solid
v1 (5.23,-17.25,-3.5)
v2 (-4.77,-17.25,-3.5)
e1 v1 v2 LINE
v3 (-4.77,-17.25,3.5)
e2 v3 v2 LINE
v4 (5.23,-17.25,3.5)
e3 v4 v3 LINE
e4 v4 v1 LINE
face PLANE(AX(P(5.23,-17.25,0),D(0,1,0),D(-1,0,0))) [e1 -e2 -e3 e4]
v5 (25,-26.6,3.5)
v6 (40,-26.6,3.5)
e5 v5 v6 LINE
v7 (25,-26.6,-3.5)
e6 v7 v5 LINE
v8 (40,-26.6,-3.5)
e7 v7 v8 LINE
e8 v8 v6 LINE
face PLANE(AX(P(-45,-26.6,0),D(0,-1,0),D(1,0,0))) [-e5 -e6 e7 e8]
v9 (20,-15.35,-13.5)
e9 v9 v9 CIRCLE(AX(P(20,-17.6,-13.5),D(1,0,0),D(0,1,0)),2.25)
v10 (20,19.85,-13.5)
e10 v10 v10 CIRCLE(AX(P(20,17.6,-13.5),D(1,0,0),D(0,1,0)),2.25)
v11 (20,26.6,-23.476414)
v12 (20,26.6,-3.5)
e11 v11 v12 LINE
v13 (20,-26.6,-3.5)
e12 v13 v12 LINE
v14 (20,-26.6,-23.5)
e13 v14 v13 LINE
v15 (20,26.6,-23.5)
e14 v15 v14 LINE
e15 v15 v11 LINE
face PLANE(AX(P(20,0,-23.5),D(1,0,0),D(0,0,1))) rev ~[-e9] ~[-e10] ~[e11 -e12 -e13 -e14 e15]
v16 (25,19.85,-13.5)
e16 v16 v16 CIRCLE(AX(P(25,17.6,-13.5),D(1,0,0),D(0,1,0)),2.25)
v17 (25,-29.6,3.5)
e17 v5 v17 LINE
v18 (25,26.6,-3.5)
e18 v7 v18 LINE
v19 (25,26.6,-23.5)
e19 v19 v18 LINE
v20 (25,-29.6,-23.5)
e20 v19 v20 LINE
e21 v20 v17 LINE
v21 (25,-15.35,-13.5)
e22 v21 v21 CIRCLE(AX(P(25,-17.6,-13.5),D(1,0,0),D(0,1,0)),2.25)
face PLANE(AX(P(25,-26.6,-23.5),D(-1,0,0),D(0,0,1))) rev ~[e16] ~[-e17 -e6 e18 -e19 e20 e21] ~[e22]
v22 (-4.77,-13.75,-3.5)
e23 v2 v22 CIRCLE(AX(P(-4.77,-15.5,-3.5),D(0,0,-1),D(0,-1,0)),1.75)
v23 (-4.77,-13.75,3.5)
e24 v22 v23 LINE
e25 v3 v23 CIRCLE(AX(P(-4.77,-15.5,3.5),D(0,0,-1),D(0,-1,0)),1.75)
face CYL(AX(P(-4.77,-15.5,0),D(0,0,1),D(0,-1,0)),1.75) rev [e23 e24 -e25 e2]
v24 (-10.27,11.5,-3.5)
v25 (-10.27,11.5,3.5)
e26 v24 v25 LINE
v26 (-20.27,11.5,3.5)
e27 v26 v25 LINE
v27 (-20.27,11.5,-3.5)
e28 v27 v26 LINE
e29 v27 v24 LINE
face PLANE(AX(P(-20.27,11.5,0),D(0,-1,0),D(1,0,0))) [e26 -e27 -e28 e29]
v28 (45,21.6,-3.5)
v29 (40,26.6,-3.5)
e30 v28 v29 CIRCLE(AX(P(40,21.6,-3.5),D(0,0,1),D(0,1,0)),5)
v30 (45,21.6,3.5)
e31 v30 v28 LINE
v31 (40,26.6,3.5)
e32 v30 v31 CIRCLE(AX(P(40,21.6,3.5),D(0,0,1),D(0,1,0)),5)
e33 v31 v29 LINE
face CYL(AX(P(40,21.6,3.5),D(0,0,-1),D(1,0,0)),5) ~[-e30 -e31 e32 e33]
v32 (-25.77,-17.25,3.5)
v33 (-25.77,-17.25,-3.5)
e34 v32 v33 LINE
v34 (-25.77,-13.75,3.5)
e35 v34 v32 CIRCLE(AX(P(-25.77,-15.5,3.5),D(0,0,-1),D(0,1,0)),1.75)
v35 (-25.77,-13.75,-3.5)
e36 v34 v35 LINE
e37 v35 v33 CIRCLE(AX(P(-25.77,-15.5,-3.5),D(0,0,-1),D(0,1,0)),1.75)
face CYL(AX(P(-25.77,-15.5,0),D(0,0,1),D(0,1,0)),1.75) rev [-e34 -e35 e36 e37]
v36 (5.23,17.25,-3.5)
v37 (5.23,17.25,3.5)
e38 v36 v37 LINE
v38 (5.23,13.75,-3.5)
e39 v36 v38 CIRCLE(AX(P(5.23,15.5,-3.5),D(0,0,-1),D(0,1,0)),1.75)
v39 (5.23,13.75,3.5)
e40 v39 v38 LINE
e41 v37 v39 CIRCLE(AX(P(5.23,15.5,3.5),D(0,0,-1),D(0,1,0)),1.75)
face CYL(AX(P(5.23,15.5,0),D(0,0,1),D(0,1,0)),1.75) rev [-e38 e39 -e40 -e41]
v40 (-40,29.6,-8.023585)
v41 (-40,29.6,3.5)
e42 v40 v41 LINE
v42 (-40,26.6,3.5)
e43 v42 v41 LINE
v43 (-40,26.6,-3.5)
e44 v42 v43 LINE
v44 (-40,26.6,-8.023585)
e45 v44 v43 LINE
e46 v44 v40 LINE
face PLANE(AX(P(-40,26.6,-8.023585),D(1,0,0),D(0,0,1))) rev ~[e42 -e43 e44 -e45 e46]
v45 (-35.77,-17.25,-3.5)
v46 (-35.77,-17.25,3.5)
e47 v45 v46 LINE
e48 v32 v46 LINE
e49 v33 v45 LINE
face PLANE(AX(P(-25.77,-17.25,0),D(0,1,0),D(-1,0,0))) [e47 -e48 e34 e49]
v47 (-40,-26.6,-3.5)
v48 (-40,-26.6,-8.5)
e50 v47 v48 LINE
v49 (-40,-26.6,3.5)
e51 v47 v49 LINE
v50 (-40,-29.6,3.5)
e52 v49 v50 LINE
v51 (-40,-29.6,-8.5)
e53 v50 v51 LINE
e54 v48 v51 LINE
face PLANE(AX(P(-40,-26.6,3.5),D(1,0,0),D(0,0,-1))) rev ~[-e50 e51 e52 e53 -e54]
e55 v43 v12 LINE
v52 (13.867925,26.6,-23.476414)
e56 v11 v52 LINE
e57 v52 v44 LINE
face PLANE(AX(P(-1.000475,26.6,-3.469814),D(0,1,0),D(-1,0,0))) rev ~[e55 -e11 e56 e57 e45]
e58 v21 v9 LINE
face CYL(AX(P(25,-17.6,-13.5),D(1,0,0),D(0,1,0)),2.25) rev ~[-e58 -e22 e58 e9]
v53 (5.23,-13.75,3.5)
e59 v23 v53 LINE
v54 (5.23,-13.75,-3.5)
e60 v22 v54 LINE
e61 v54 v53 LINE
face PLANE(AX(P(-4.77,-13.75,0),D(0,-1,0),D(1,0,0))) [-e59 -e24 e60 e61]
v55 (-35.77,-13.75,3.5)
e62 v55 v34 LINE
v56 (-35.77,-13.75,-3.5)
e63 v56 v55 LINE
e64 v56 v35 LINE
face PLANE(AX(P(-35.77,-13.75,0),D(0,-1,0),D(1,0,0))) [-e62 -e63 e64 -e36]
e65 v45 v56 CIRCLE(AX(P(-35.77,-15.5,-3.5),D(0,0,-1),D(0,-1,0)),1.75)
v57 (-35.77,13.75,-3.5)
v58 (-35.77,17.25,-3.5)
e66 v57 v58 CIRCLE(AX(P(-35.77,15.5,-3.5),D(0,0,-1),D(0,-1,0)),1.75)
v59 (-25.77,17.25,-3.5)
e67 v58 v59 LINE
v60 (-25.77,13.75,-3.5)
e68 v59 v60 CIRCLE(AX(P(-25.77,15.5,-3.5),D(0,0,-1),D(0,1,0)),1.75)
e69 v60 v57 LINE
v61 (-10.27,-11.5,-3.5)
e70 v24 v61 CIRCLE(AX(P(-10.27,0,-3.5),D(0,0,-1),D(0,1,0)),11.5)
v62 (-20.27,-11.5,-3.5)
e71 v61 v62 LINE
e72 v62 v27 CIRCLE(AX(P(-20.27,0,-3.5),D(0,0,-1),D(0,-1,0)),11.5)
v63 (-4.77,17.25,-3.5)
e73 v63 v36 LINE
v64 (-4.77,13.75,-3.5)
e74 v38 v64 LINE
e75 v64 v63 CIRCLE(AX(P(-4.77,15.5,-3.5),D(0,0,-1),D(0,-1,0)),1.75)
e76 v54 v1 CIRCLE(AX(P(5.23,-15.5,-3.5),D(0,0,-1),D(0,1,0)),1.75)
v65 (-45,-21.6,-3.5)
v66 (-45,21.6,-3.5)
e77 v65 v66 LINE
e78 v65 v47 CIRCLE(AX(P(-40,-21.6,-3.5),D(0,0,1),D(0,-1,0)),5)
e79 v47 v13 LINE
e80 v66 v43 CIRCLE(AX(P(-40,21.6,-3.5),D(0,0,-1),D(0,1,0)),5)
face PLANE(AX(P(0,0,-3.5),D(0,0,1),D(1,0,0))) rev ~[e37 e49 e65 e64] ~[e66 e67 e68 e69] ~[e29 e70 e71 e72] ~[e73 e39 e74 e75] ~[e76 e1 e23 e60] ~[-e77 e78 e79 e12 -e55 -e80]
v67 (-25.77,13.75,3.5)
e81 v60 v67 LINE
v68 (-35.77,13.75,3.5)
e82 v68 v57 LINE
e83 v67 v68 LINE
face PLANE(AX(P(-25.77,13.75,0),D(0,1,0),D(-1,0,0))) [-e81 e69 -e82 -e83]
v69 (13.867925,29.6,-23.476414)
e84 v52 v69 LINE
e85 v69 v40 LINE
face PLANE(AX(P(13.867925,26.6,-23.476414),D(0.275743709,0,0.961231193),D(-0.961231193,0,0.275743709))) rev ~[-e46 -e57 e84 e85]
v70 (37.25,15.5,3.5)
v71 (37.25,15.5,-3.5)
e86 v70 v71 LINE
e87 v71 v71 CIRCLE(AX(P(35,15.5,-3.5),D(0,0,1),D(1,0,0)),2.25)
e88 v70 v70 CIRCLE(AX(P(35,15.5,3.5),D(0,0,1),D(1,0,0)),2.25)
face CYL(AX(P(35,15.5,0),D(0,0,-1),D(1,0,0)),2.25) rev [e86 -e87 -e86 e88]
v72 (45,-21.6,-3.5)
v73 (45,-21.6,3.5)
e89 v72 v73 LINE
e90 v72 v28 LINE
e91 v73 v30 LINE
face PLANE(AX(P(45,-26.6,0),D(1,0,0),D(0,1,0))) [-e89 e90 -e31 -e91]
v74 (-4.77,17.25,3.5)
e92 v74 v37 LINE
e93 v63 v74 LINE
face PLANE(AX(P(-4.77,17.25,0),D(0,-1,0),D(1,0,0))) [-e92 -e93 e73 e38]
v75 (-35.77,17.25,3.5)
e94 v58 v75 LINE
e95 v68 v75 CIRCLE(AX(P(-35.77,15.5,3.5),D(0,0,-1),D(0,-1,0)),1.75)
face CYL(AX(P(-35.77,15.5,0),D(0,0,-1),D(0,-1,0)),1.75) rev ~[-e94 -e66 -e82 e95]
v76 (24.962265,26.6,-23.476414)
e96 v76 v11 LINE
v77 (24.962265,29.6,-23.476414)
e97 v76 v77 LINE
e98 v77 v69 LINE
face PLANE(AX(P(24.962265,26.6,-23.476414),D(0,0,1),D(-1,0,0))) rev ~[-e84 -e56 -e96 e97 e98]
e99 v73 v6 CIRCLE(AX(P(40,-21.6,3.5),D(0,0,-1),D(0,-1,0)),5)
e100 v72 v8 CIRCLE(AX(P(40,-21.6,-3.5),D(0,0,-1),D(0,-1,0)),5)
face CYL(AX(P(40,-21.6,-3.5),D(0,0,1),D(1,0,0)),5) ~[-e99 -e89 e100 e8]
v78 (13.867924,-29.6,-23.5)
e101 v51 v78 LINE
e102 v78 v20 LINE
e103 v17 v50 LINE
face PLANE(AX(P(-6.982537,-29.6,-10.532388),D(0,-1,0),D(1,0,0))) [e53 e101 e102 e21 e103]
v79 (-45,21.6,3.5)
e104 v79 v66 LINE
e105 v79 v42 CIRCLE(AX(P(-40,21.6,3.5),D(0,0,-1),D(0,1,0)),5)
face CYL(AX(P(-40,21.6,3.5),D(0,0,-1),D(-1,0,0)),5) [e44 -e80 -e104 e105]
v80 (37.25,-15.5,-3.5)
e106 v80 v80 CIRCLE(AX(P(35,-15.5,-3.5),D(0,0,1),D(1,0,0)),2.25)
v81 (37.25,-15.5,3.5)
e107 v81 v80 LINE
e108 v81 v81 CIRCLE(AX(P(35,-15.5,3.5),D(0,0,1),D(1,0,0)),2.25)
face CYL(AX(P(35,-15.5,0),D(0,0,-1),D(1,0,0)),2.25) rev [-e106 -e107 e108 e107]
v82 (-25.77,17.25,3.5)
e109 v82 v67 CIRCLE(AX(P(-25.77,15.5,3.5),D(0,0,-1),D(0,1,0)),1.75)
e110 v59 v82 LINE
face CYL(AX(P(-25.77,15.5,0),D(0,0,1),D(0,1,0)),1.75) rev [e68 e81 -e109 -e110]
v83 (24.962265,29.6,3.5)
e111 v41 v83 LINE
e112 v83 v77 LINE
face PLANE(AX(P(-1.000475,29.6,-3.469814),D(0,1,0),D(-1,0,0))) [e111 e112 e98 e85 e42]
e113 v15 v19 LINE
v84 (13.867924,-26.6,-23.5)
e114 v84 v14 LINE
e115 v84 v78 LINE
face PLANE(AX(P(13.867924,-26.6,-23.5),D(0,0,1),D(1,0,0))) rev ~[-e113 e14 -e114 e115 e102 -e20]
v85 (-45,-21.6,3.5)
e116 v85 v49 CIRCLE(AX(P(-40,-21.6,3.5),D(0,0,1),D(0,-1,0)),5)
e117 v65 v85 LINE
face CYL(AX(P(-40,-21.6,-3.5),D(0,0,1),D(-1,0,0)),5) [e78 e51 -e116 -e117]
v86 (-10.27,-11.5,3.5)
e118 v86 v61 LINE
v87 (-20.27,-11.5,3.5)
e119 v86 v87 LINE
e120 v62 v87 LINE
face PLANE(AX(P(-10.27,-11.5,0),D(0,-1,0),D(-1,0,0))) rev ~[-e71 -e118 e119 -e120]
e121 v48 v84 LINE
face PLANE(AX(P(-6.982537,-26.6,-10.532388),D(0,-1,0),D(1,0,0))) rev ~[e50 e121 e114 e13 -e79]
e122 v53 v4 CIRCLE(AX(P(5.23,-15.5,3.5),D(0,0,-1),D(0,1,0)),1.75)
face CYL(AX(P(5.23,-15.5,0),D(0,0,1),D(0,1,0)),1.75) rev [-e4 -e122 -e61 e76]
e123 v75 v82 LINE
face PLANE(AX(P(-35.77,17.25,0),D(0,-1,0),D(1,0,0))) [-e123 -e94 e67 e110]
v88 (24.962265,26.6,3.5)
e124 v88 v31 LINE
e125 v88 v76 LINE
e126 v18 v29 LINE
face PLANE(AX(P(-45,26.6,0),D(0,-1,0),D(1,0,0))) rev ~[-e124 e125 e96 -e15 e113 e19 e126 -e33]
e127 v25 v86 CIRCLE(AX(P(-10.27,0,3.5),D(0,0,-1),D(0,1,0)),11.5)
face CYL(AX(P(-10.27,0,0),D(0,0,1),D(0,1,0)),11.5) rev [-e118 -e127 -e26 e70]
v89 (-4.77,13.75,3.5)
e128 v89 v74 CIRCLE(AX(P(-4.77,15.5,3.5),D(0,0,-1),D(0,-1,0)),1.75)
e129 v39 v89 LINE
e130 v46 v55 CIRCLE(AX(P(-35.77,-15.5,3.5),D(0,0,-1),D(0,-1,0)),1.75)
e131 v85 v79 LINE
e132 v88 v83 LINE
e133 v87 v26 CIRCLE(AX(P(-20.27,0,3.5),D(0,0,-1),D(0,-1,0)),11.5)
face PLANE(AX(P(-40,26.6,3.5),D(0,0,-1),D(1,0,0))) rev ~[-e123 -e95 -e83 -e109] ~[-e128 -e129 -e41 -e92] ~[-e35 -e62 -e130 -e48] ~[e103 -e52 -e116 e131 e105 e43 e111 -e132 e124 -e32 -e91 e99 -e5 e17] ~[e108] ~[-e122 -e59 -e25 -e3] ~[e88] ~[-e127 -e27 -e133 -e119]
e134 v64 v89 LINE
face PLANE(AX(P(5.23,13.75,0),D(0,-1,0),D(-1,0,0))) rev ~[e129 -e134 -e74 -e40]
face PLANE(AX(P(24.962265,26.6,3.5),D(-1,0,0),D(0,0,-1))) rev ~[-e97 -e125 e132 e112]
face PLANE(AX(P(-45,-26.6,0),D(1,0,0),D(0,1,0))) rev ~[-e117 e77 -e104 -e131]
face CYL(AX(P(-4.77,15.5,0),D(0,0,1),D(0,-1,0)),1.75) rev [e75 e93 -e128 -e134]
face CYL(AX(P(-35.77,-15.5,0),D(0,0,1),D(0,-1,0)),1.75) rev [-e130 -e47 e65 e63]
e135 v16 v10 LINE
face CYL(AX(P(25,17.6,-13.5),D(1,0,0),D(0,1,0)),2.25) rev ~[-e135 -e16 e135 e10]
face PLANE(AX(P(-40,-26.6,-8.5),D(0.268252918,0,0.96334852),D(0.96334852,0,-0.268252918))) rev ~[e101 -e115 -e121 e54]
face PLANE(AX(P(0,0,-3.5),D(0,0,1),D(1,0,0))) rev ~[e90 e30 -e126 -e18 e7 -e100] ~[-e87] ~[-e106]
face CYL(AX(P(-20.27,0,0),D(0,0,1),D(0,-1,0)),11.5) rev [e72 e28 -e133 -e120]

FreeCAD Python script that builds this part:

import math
import FreeCAD as App
import Part
import Sketcher
Q = App.Units.Quantity


def edges_at(feature, points):
    """Names of the edges that pass closest to the given points."""
    edges = feature.Shape.Edges
    near = lambda p: min(range(len(edges)), key=lambda i: edges[i].distToShape(Part.Vertex(*p))[0])
    return sorted({f"Edge{near(p) + 1}" for p in points})


def add_polygon(sketch, points):
    """Adds a closed chain of lines whose ends are joined by coincident constraints."""
    first, n = sketch.GeometryCount, len(points)
    for a, b in zip(points, points[1:] + points[:1]):
        sketch.addGeometry(Part.LineSegment(App.Vector(*a, 0), App.Vector(*b, 0)), False)
    for i in range(n):
        sketch.addConstraint(Sketcher.Constraint("Coincident", first + i, 2, first + (i + 1) % n, 1))

doc = App.newDocument("Part")
body = doc.addObject("PartDesign::Body", "Body")

sketch1 = body.newObject("Sketcher::SketchObject", "Sketch")
sketch1.AttachmentSupport = (doc.getObject("XY_Plane"), [""])
sketch1.MapMode = "FlatFace"
add_polygon(sketch1, [(-45, 26.6), (-45, -26.6), (45, -26.6), (45, 26.6)])
sketch1.addGeometry(Part.LineSegment(App.Vector(-25.8, -17.2, 0), App.Vector(-35.8, -17.2, 0)), False)
sketch1.addGeometry(Part.ArcOfCircle(Part.Circle(App.Vector(-35.8, -15.5, 0), App.Vector(0, 0, 1), 1.8), math.radians(90), math.radians(270)), False)
sketch1.addGeometry(Part.LineSegment(App.Vector(-35.8, -13.8, 0), App.Vector(-25.8, -13.8, 0)), False)
sketch1.addGeometry(Part.ArcOfCircle(Part.Circle(App.Vector(-25.8, -15.5, 0), App.Vector(0, 0, 1), 1.8), math.radians(-90), math.radians(90)), False)
sketch1.addGeometry(Part.ArcOfCircle(Part.Circle(App.Vector(-4.8, -15.5, 0), App.Vector(0, 0, 1), 1.8), math.radians(90), math.radians(270)), False)
sketch1.addGeometry(Part.LineSegment(App.Vector(-4.8, -13.8, 0), App.Vector(5.2, -13.8, 0)), False)
sketch1.addGeometry(Part.ArcOfCircle(Part.Circle(App.Vector(5.2, -15.5, 0), App.Vector(0, 0, 1), 1.8), math.radians(-90), math.radians(90)), False)
sketch1.addGeometry(Part.LineSegment(App.Vector(5.2, -17.2, 0), App.Vector(-4.8, -17.2, 0)), False)
sketch1.addGeometry(Part.Circle(App.Vector(35, -15.5, 0), App.Vector(0, 0, 1), 2.2), False)
sketch1.addGeometry(Part.LineSegment(App.Vector(-20.3, 11.5, 0), App.Vector(-10.3, 11.5, 0)), False)
sketch1.addGeometry(Part.ArcOfCircle(Part.Circle(App.Vector(-10.3, 0, 0), App.Vector(0, 0, 1), 11.5), math.radians(-90), math.radians(90)), False)
sketch1.addGeometry(Part.LineSegment(App.Vector(-10.3, -11.5, 0), App.Vector(-20.3, -11.5, 0)), False)
sketch1.addGeometry(Part.ArcOfCircle(Part.Circle(App.Vector(-20.3, 0, 0), App.Vector(0, 0, 1), 11.5), math.radians(90), math.radians(270)), False)
sketch1.addGeometry(Part.ArcOfCircle(Part.Circle(App.Vector(-25.8, 15.5, 0), App.Vector(0, 0, 1), 1.8), math.radians(-90), math.radians(90)), False)
sketch1.addGeometry(Part.LineSegment(App.Vector(-25.8, 13.8, 0), App.Vector(-35.8, 13.8, 0)), False)
sketch1.addGeometry(Part.ArcOfCircle(Part.Circle(App.Vector(-35.8, 15.5, 0), App.Vector(0, 0, 1), 1.8), math.radians(90), math.radians(270)), False)
sketch1.addGeometry(Part.LineSegment(App.Vector(-35.8, 17.2, 0), App.Vector(-25.8, 17.2, 0)), False)
sketch1.addGeometry(Part.LineSegment(App.Vector(-4.8, 17.2, 0), App.Vector(5.2, 17.2, 0)), False)
sketch1.addGeometry(Part.ArcOfCircle(Part.Circle(App.Vector(5.2, 15.5, 0), App.Vector(0, 0, 1), 1.8), math.radians(-90), math.radians(90)), False)
sketch1.addGeometry(Part.LineSegment(App.Vector(5.2, 13.8, 0), App.Vector(-4.8, 13.8, 0)), False)
sketch1.addGeometry(Part.ArcOfCircle(Part.Circle(App.Vector(-4.8, 15.5, 0), App.Vector(0, 0, 1), 1.8), math.radians(90), math.radians(270)), False)
sketch1.addGeometry(Part.Circle(App.Vector(35, 15.5, 0), App.Vector(0, 0, 1), 2.2), False)
sketch1.addConstraint([
    Sketcher.Constraint("Tangent", 4, 2, 5, 2),
    Sketcher.Constraint("Tangent", 5, 1, 6, 1),
    Sketcher.Constraint("Tangent", 6, 2, 7, 2),
    Sketcher.Constraint("Tangent", 7, 1, 4, 1),
    Sketcher.Constraint("Tangent", 8, 1, 9, 1),
    Sketcher.Constraint("Tangent", 9, 2, 10, 2),
    Sketcher.Constraint("Tangent", 10, 1, 11, 1),
    Sketcher.Constraint("Tangent", 11, 2, 8, 2),
    Sketcher.Constraint("Tangent", 13, 2, 14, 2),
    Sketcher.Constraint("Tangent", 14, 1, 15, 1),
    Sketcher.Constraint("Tangent", 15, 2, 16, 2),
    Sketcher.Constraint("Tangent", 16, 1, 13, 1),
    Sketcher.Constraint("Tangent", 17, 1, 18, 1),
    Sketcher.Constraint("Tangent", 18, 2, 19, 2),
    Sketcher.Constraint("Tangent", 19, 1, 20, 1),
    Sketcher.Constraint("Tangent", 20, 2, 17, 2),
    Sketcher.Constraint("Tangent", 21, 2, 22, 2),
    Sketcher.Constraint("Tangent", 22, 1, 23, 1),
    Sketcher.Constraint("Tangent", 23, 2, 24, 2),
    Sketcher.Constraint("Tangent", 24, 1, 21, 1),
    Sketcher.Constraint("Vertical", 0),
    Sketcher.Constraint("Horizontal", 1),
    Sketcher.Constraint("Vertical", 2),
    Sketcher.Constraint("Horizontal", 3),
    Sketcher.Constraint("Horizontal", 4),
    Sketcher.Constraint("Horizontal", 6),
    Sketcher.Constraint("Horizontal", 9),
    Sketcher.Constraint("Horizontal", 11),
    Sketcher.Constraint("Horizontal", 13),
    Sketcher.Constraint("Horizontal", 15),
    Sketcher.Constraint("Horizontal", 18),
    Sketcher.Constraint("Horizontal", 20),
    Sketcher.Constraint("Horizontal", 21),
    Sketcher.Constraint("Horizontal", 23),
    Sketcher.Constraint("Equal", 7, 8),
    Sketcher.Constraint("Equal", 10, 17),
    Sketcher.Constraint("Equal", 19, 22),
    Sketcher.Constraint("Equal", 12, 25),
    Sketcher.Constraint("Symmetric", 0, 2, 2, 2, -1, 1),
    Sketcher.Constraint("Symmetric", 7, 3, 17, 3, -1),
    Sketcher.Constraint("Symmetric", 10, 3, 22, 3, -1),
    Sketcher.Constraint("Symmetric", 12, 3, 25, 3, -1),
    Sketcher.Constraint("PointOnObject", 14, 3, -1),
    Sketcher.Constraint("Horizontal", 7, 3, 8, 3),
    Sketcher.Constraint("Horizontal", 10, 3, 12, 3),
    Sketcher.Constraint("Vertical", 5, 3, 19, 3),
    Sketcher.Constraint("Vertical", 8, 3, 24, 3),
    Sketcher.Constraint("Equal", 6, 9),
    Sketcher.Constraint("Equal", 11, 13),
    Sketcher.Constraint("Diameter", 12, Q("4.5 mm")),
    Sketcher.Constraint("Radius", 14, Q("11.5 mm")),
    Sketcher.Constraint("DistanceX", 1, 1, 1, 2, Q("90 mm")),
    Sketcher.Constraint("DistanceX", 4, 2, 4, 1, Q("10 mm")),
    Sketcher.Constraint("Radius", 5, Q("1.75 mm")),
    Sketcher.Constraint("DistanceY", 0, 2, 0, 1, Q("53.2 mm")),
    Sketcher.Constraint("DistanceX", -1, 1, 12, 3, Q("35 mm")),
    Sketcher.Constraint("DistanceX", 7, 3, 8, 3, Q("21 mm")),
    Sketcher.Constraint("DistanceY", 7, 3, 17, 3, Q("31 mm")),
    Sketcher.Constraint("DistanceX", 14, 3, 8, 3, Q("5.5 mm")),
    Sketcher.Constraint("DistanceX", 5, 3, -1, 1, Q("35.77 mm")),
])
pad1 = body.newObject("PartDesign::Pad", "Pad")
pad1.Profile = sketch1
pad1.Length = 7
pad1.Midplane = True
doc.recompute()

fillet = body.newObject("PartDesign::Fillet", "Fillet")
fillet.Base = (pad1, edges_at(pad1, [
    (-45, 26.6, 0),
    (-45, -26.6, 0),
    (45, -26.6, 0),
    (45, 26.6, 0),
]))
fillet.Radius = 5

sketch2 = body.newObject("Sketcher::SketchObject", "Sketch001")
sketch2.AttachmentSupport = (doc.getObject("XZ_Plane"), [""])
sketch2.MapMode = "FlatFace"
add_polygon(sketch2, [(20, -4), (20, -24), (25, -24), (25, -4)])
sketch2.addConstraint([
    Sketcher.Constraint("Vertical", 0),
    Sketcher.Constraint("Horizontal", 1),
    Sketcher.Constraint("Vertical", 2),
    Sketcher.Constraint("Horizontal", 3),
    Sketcher.Constraint("DistanceX", 1, 1, 1, 2, Q("5 mm")),
    Sketcher.Constraint("DistanceY", 0, 2, 0, 1, Q("20 mm")),
    Sketcher.Constraint("DistanceX", -1, 1, 0, 2, Q("20 mm")),
    Sketcher.Constraint("DistanceY", 0, 2, -1, 1, Q("23.5 mm")),
])
pad2 = body.newObject("PartDesign::Pad", "Pad001")
pad2.Profile = sketch2
pad2.Length = 53.2
pad2.Midplane = True

sketch3 = body.newObject("Sketcher::SketchObject", "Sketch002")
sketch3.AttachmentSupport = (doc.getObject("XZ_Plane"), [""])
sketch3.MapMode = "FlatFace"
sketch3.AttachmentOffset = App.Placement(App.Vector(0, 0, 26.6), App.Rotation())
add_polygon(sketch3, [(14, -24), (25, -24), (25, 4), (-40, 4), (-40, -8)])
sketch3.addConstraint([
    Sketcher.Constraint("Horizontal", 0),
    Sketcher.Constraint("Vertical", 1),
    Sketcher.Constraint("Horizontal", 2),
    Sketcher.Constraint("Vertical", 3),
    Sketcher.Constraint("DistanceX", 2, 2, 2, 1, Q("65 mm")),
    Sketcher.Constraint("DistanceY", 1, 1, 1, 2, Q("27 mm")),
    Sketcher.Constraint("DistanceY", 3, 2, 3, 1, Q("12 mm")),
    Sketcher.Constraint("DistanceX", -1, 1, 0, 2, Q("25 mm")),
    Sketcher.Constraint("DistanceY", 0, 2, -1, 1, Q("23.5 mm")),
    Sketcher.Constraint("Distance", 4, Q("55.917379 mm")),
])
pad3 = body.newObject("PartDesign::Pad", "Pad002")
pad3.Profile = sketch3
pad3.Length = 3

sketch4 = body.newObject("Sketcher::SketchObject", "Sketch003")
sketch4.AttachmentSupport = (doc.getObject("XZ_Plane"), [""])
sketch4.MapMode = "FlatFace"
sketch4.AttachmentOffset = App.Placement(App.Vector(0, 0, -26.6), App.Rotation())
add_polygon(sketch4, [(25, 4), (25, -23), (14, -23), (-40, -8), (-40, 4)])
sketch4.addConstraint([
    Sketcher.Constraint("Vertical", 0),
    Sketcher.Constraint("Horizontal", 1),
    Sketcher.Constraint("Vertical", 3),
    Sketcher.Constraint("Horizontal", 4),
    Sketcher.Constraint("DistanceX", 2, 2, -1, 1, Q("40 mm")),
    Sketcher.Constraint("DistanceY", -1, 1, 3, 2, Q("3.5 mm")),
    Sketcher.Constraint("DistanceX", 1, 2, 1, 1, Q("11.09434 mm")),
    Sketcher.Constraint("Distance", 2, Q("56.04055 mm")),
    Sketcher.Constraint("DistanceX", 4, 1, 4, 2, Q("64.962265 mm")),
    Sketcher.Constraint("DistanceY", 0, 2, 0, 1, Q("26.976414 mm")),
])
pad4 = body.newObject("PartDesign::Pad", "Pad003")
pad4.Profile = sketch4
pad4.Length = 3
pad4.Reversed = True

sketch5 = body.newObject("Sketcher::SketchObject", "Sketch004")
sketch5.AttachmentSupport = (doc.getObject("YZ_Plane"), [""])
sketch5.MapMode = "FlatFace"
sketch5.AttachmentOffset = App.Placement(App.Vector(0, 0, 25), App.Rotation())
sketch5.addGeometry([
    Part.Circle(App.Vector(-17.6, -13.5, 0), App.Vector(0, 0, 1), 2.2),
    Part.Circle(App.Vector(17.6, -13.5, 0), App.Vector(0, 0, 1), 2.2),
], False)
sketch5.addConstraint([
    Sketcher.Constraint("Equal", 0, 1),
    Sketcher.Constraint("Symmetric", 0, 3, 1, 3, -2),
    Sketcher.Constraint("Diameter", 0, Q("4.5 mm")),
    Sketcher.Constraint("DistanceX", 0, 3, -1, 1, Q("17.6 mm")),
    Sketcher.Constraint("DistanceY", 0, 3, -1, 1, Q("13.5 mm")),
])
pocket1 = body.newObject("PartDesign::Pocket", "Pocket")
pocket1.Profile = sketch5
pocket1.Type = "ThroughAll"

doc.recompute()
